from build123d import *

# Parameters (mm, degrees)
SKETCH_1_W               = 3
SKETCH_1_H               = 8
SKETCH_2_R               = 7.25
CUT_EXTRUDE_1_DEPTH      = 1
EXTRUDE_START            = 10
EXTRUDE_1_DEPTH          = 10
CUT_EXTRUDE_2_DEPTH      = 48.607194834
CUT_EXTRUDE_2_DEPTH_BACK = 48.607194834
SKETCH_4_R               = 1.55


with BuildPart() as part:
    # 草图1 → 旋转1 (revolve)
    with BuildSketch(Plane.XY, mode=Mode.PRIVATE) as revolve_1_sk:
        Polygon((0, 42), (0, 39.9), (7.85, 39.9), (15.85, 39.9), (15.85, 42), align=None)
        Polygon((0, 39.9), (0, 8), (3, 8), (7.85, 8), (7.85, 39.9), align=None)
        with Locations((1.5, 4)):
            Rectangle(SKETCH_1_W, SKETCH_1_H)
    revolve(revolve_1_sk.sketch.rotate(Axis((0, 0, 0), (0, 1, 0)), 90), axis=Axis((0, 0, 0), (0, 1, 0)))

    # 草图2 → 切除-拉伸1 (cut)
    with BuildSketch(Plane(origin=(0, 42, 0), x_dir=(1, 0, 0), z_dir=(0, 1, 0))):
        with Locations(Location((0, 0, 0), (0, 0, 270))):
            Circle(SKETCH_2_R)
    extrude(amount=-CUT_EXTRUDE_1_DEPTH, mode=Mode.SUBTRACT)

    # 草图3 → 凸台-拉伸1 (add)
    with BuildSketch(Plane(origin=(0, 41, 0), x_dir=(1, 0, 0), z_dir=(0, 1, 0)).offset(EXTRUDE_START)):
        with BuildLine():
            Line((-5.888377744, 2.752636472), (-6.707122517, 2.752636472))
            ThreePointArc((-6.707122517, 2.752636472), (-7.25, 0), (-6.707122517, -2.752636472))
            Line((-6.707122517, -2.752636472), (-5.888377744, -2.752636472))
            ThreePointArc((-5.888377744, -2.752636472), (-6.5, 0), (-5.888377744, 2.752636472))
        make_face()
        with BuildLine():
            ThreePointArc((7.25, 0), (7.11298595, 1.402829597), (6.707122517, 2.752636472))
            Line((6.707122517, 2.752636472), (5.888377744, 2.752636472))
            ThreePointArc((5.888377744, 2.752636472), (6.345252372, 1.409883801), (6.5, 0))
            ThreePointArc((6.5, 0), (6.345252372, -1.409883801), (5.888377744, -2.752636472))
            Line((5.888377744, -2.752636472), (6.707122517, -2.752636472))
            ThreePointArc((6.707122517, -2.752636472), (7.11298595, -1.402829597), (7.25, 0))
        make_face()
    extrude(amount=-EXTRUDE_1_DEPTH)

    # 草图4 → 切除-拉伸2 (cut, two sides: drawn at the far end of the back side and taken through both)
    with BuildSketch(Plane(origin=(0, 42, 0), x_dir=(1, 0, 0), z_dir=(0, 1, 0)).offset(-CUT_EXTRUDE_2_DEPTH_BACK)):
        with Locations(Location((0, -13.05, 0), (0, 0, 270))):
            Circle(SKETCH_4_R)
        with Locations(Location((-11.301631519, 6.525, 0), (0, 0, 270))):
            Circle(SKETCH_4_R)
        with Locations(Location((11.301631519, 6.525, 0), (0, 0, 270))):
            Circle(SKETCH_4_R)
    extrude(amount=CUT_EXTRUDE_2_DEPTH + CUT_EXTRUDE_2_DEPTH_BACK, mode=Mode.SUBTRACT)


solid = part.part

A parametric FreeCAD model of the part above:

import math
import FreeCAD as App
import Part
import Sketcher

doc = App.newDocument("Part")
body = doc.addObject("PartDesign::Body", "Body")

# Sketch on XY plane
sketch1 = doc.addObject("Sketcher::SketchObject", "Sketch")
body.addObject(sketch1)
sketch1.AttachmentSupport = (doc.XY_Plane, [""])
sketch1.MapMode = "FlatFace"
sketch1.addGeometry([
    Part.LineSegment(App.Vector(0, 42, 0), App.Vector(0, 0, 0)),  # 0
    Part.LineSegment(App.Vector(0, 0, 0), App.Vector(3, 0, 0)),  # 1
    Part.LineSegment(App.Vector(3, 0, 0), App.Vector(3, 8, 0)),  # 2
    Part.LineSegment(App.Vector(3, 8, 0), App.Vector(7.8, 8, 0)),  # 3
    Part.LineSegment(App.Vector(7.8, 8, 0), App.Vector(7.8, 39.9, 0)),  # 4
    Part.LineSegment(App.Vector(7.8, 39.9, 0), App.Vector(15.8, 39.9, 0)),  # 5
    Part.LineSegment(App.Vector(15.8, 39.9, 0), App.Vector(15.8, 42, 0)),  # 6
    Part.LineSegment(App.Vector(15.8, 42, 0), App.Vector(0, 42, 0)),  # 7
], False)
sketch1.addConstraint([
    Sketcher.Constraint("Coincident", 0, 2, 1, 1),
    Sketcher.Constraint("Coincident", 1, 2, 2, 1),
    Sketcher.Constraint("Coincident", 2, 2, 3, 1),
    Sketcher.Constraint("Coincident", 3, 2, 4, 1),
    Sketcher.Constraint("Coincident", 4, 2, 5, 1),
    Sketcher.Constraint("Coincident", 5, 2, 6, 1),
    Sketcher.Constraint("Coincident", 6, 2, 7, 1),
    Sketcher.Constraint("Coincident", 7, 2, 0, 1),
    Sketcher.Constraint("Vertical", 0),
    Sketcher.Constraint("Horizontal", 1),
    Sketcher.Constraint("Vertical", 2),
    Sketcher.Constraint("Horizontal", 3),
    Sketcher.Constraint("Vertical", 4),
    Sketcher.Constraint("Horizontal", 5),
    Sketcher.Constraint("Vertical", 6),
    Sketcher.Constraint("Horizontal", 7),
    Sketcher.Constraint("Coincident", 0, 2, -1, 1),
    Sketcher.Constraint("Equal", 5, 2),
    Sketcher.Constraint("DistanceX", 1, 1, 1, 2, 3.0),
    Sketcher.Constraint("DistanceX", 5, 1, 5, 2, 8.0),
    Sketcher.Constraint("DistanceY", 0, 2, 0, 1, 42.0),
    Sketcher.Constraint("DistanceY", 4, 1, 4, 2, 31.9),
    Sketcher.Constraint("DistanceX", 3, 1, 3, 2, 4.85),
])
revolution = doc.addObject("PartDesign::Revolution", "Revolution")
body.addObject(revolution)
revolution.Profile = sketch1
revolution.ReferenceAxis = (sketch1, ["V_Axis"])
revolution.Angle = 360

# Sketch on XZ plane
sketch2 = doc.addObject("Sketcher::SketchObject", "Sketch001")
body.addObject(sketch2)
sketch2.AttachmentSupport = (doc.XZ_Plane, [""])
sketch2.MapMode = "FlatFace"
sketch2.AttachmentOffset = App.Placement(App.Vector(0, 0, -42), App.Rotation())
sketch2.addGeometry(Part.Circle(App.Vector(0, 0, 0), App.Vector(0, 0, 1), 7), False)
sketch2.addConstraint([
    Sketcher.Constraint("Coincident", 0, 3, -1, 1),
    Sketcher.Constraint("Diameter", 0, 14.5),
])
pocket1 = doc.addObject("PartDesign::Pocket", "Pocket")
body.addObject(pocket1)
pocket1.Profile = sketch2
pocket1.Length = 1
pocket1.Reversed = True

# Sketch on XZ plane
sketch3 = doc.addObject("Sketcher::SketchObject", "Sketch002")
body.addObject(sketch3)
sketch3.AttachmentSupport = (doc.XZ_Plane, [""])
sketch3.MapMode = "FlatFace"
sketch3.AttachmentOffset = App.Placement(App.Vector(0, 0, -51), App.Rotation())
sketch3.addGeometry([
    Part.LineSegment(App.Vector(-5.9, -2.8, 0), App.Vector(-6.7, -2.8, 0)),  # 0
    Part.ArcOfCircle(Part.Circle(App.Vector(0, 0, 0), App.Vector(0, 0, 1), 7.3), math.radians(158), math.radians(202)),  # 1
    Part.LineSegment(App.Vector(-6.7, 2.8, 0), App.Vector(-5.9, 2.8, 0)),  # 2
    Part.ArcOfCircle(Part.Circle(App.Vector(0, 0, 0), App.Vector(0, 0, 1), 6.5), math.radians(155), math.radians(205)),  # 3
    Part.ArcOfCircle(Part.Circle(App.Vector(0, 0, 0), App.Vector(0, 0, 1), 7.2), math.radians(-22), math.radians(0)),  # 4
    Part.LineSegment(App.Vector(6.7, -2.8, 0), App.Vector(5.9, -2.8, 0)),  # 5
    Part.ArcOfCircle(Part.Circle(App.Vector(0, 0, 0), App.Vector(0, 0, 1), 6.5), math.radians(-25), math.radians(0)),  # 6
    Part.ArcOfCircle(Part.Circle(App.Vector(0, 0, 0), App.Vector(0, 0, 1), 6.5), math.radians(0), math.radians(25)),  # 7
    Part.LineSegment(App.Vector(5.9, 2.8, 0), App.Vector(6.7, 2.8, 0)),  # 8
    Part.ArcOfCircle(Part.Circle(App.Vector(0, 0, 0), App.Vector(0, 0, 1), 7.2), math.radians(0), math.radians(22)),  # 9
], False)
sketch3.addConstraint([
    Sketcher.Constraint("Coincident", 0, 2, 1, 2),
    Sketcher.Constraint("Coincident", 1, 1, 2, 1),
    Sketcher.Constraint("Coincident", 2, 2, 3, 1),
    Sketcher.Constraint("Coincident", 3, 2, 0, 1),
    Sketcher.Constraint("Coincident", 4, 1, 5, 1),
    Sketcher.Constraint("Coincident", 5, 2, 6, 1),
    Sketcher.Constraint("Tangent", 6, 2, 7, 1),
    Sketcher.Constraint("Coincident", 7, 2, 8, 1),
    Sketcher.Constraint("Coincident", 8, 2, 9, 2),
    Sketcher.Constraint("Tangent", 9, 1, 4, 2),
    Sketcher.Constraint("Horizontal", 0),
    Sketcher.Constraint("Horizontal", 2),
    Sketcher.Constraint("Horizontal", 5),
    Sketcher.Constraint("Horizontal", 8),
    Sketcher.Constraint("Coincident", 1, 3, -1, 1),
    Sketcher.Constraint("Coincident", 3, 3, -1, 1),
    Sketcher.Constraint("Coincident", 4, 3, -1, 1),
    Sketcher.Constraint("Coincident", 6, 3, -1, 1),
    Sketcher.Constraint("Equal", 1, 4),
    Sketcher.Constraint("Equal", 3, 6),
    Sketcher.Constraint("Equal", 6, 7),
    Sketcher.Constraint("Equal", 4, 9),
    Sketcher.Constraint("PointOnObject", 6, 2, -1),
    Sketcher.Constraint("PointOnObject", 9, 1, -1),
    Sketcher.Constraint("Horizontal", 3, 2, 4, 1),
    Sketcher.Constraint("Horizontal", 2, 2, 7, 2),
    Sketcher.Constraint("Vertical", 0, 2, 1, 1),
    Sketcher.Constraint("Radius", 3, 6.5),
    Sketcher.Constraint("Radius", 1, 7.25),
    Sketcher.Constraint("DistanceX", 0, 2, 0, 1, 0.818745),
])
pad1 = doc.addObject("PartDesign::Pad", "Pad")
body.addObject(pad1)
pad1.Profile = sketch3
pad1.Length = 10

# Sketch on XZ plane
sketch4 = doc.addObject("Sketcher::SketchObject", "Sketch003")
body.addObject(sketch4)
sketch4.AttachmentSupport = (doc.XZ_Plane, [""])
sketch4.MapMode = "FlatFace"
sketch4.AttachmentOffset = App.Placement(App.Vector(0, 0, -42), App.Rotation())
sketch4.addGeometry([
    Part.Circle(App.Vector(0, 13.1, 0), App.Vector(0, 0, 1), 1.6),
    Part.Circle(App.Vector(-11.3, -6.5, 0), App.Vector(0, 0, 1), 1.6),
    Part.Circle(App.Vector(11.3, -6.5, 0), App.Vector(0, 0, 1), 1.6),
], False)
sketch4.addConstraint([
    Sketcher.Constraint("Equal", 0, 1),
    Sketcher.Constraint("Equal", 1, 2),
    Sketcher.Constraint("Symmetric", 1, 3, 2, 3, -2),
    Sketcher.Constraint("PointOnObject", 0, 3, -2),
    Sketcher.Constraint("Diameter", 0, 3.1),
    Sketcher.Constraint("DistanceY", -1, 1, 0, 3, 13.05),
    Sketcher.Constraint("DistanceY", 1, 3, -1, 1, 6.525),
    Sketcher.Constraint("DistanceX", 1, 3, -1, 1, 11.301632),
])
pocket2 = doc.addObject("PartDesign::Pocket", "Pocket001")
body.addObject(pocket2)
pocket2.Profile = sketch4
pocket2.Type = "ThroughAll"
pocket2.Midplane = True

doc.recompute()
